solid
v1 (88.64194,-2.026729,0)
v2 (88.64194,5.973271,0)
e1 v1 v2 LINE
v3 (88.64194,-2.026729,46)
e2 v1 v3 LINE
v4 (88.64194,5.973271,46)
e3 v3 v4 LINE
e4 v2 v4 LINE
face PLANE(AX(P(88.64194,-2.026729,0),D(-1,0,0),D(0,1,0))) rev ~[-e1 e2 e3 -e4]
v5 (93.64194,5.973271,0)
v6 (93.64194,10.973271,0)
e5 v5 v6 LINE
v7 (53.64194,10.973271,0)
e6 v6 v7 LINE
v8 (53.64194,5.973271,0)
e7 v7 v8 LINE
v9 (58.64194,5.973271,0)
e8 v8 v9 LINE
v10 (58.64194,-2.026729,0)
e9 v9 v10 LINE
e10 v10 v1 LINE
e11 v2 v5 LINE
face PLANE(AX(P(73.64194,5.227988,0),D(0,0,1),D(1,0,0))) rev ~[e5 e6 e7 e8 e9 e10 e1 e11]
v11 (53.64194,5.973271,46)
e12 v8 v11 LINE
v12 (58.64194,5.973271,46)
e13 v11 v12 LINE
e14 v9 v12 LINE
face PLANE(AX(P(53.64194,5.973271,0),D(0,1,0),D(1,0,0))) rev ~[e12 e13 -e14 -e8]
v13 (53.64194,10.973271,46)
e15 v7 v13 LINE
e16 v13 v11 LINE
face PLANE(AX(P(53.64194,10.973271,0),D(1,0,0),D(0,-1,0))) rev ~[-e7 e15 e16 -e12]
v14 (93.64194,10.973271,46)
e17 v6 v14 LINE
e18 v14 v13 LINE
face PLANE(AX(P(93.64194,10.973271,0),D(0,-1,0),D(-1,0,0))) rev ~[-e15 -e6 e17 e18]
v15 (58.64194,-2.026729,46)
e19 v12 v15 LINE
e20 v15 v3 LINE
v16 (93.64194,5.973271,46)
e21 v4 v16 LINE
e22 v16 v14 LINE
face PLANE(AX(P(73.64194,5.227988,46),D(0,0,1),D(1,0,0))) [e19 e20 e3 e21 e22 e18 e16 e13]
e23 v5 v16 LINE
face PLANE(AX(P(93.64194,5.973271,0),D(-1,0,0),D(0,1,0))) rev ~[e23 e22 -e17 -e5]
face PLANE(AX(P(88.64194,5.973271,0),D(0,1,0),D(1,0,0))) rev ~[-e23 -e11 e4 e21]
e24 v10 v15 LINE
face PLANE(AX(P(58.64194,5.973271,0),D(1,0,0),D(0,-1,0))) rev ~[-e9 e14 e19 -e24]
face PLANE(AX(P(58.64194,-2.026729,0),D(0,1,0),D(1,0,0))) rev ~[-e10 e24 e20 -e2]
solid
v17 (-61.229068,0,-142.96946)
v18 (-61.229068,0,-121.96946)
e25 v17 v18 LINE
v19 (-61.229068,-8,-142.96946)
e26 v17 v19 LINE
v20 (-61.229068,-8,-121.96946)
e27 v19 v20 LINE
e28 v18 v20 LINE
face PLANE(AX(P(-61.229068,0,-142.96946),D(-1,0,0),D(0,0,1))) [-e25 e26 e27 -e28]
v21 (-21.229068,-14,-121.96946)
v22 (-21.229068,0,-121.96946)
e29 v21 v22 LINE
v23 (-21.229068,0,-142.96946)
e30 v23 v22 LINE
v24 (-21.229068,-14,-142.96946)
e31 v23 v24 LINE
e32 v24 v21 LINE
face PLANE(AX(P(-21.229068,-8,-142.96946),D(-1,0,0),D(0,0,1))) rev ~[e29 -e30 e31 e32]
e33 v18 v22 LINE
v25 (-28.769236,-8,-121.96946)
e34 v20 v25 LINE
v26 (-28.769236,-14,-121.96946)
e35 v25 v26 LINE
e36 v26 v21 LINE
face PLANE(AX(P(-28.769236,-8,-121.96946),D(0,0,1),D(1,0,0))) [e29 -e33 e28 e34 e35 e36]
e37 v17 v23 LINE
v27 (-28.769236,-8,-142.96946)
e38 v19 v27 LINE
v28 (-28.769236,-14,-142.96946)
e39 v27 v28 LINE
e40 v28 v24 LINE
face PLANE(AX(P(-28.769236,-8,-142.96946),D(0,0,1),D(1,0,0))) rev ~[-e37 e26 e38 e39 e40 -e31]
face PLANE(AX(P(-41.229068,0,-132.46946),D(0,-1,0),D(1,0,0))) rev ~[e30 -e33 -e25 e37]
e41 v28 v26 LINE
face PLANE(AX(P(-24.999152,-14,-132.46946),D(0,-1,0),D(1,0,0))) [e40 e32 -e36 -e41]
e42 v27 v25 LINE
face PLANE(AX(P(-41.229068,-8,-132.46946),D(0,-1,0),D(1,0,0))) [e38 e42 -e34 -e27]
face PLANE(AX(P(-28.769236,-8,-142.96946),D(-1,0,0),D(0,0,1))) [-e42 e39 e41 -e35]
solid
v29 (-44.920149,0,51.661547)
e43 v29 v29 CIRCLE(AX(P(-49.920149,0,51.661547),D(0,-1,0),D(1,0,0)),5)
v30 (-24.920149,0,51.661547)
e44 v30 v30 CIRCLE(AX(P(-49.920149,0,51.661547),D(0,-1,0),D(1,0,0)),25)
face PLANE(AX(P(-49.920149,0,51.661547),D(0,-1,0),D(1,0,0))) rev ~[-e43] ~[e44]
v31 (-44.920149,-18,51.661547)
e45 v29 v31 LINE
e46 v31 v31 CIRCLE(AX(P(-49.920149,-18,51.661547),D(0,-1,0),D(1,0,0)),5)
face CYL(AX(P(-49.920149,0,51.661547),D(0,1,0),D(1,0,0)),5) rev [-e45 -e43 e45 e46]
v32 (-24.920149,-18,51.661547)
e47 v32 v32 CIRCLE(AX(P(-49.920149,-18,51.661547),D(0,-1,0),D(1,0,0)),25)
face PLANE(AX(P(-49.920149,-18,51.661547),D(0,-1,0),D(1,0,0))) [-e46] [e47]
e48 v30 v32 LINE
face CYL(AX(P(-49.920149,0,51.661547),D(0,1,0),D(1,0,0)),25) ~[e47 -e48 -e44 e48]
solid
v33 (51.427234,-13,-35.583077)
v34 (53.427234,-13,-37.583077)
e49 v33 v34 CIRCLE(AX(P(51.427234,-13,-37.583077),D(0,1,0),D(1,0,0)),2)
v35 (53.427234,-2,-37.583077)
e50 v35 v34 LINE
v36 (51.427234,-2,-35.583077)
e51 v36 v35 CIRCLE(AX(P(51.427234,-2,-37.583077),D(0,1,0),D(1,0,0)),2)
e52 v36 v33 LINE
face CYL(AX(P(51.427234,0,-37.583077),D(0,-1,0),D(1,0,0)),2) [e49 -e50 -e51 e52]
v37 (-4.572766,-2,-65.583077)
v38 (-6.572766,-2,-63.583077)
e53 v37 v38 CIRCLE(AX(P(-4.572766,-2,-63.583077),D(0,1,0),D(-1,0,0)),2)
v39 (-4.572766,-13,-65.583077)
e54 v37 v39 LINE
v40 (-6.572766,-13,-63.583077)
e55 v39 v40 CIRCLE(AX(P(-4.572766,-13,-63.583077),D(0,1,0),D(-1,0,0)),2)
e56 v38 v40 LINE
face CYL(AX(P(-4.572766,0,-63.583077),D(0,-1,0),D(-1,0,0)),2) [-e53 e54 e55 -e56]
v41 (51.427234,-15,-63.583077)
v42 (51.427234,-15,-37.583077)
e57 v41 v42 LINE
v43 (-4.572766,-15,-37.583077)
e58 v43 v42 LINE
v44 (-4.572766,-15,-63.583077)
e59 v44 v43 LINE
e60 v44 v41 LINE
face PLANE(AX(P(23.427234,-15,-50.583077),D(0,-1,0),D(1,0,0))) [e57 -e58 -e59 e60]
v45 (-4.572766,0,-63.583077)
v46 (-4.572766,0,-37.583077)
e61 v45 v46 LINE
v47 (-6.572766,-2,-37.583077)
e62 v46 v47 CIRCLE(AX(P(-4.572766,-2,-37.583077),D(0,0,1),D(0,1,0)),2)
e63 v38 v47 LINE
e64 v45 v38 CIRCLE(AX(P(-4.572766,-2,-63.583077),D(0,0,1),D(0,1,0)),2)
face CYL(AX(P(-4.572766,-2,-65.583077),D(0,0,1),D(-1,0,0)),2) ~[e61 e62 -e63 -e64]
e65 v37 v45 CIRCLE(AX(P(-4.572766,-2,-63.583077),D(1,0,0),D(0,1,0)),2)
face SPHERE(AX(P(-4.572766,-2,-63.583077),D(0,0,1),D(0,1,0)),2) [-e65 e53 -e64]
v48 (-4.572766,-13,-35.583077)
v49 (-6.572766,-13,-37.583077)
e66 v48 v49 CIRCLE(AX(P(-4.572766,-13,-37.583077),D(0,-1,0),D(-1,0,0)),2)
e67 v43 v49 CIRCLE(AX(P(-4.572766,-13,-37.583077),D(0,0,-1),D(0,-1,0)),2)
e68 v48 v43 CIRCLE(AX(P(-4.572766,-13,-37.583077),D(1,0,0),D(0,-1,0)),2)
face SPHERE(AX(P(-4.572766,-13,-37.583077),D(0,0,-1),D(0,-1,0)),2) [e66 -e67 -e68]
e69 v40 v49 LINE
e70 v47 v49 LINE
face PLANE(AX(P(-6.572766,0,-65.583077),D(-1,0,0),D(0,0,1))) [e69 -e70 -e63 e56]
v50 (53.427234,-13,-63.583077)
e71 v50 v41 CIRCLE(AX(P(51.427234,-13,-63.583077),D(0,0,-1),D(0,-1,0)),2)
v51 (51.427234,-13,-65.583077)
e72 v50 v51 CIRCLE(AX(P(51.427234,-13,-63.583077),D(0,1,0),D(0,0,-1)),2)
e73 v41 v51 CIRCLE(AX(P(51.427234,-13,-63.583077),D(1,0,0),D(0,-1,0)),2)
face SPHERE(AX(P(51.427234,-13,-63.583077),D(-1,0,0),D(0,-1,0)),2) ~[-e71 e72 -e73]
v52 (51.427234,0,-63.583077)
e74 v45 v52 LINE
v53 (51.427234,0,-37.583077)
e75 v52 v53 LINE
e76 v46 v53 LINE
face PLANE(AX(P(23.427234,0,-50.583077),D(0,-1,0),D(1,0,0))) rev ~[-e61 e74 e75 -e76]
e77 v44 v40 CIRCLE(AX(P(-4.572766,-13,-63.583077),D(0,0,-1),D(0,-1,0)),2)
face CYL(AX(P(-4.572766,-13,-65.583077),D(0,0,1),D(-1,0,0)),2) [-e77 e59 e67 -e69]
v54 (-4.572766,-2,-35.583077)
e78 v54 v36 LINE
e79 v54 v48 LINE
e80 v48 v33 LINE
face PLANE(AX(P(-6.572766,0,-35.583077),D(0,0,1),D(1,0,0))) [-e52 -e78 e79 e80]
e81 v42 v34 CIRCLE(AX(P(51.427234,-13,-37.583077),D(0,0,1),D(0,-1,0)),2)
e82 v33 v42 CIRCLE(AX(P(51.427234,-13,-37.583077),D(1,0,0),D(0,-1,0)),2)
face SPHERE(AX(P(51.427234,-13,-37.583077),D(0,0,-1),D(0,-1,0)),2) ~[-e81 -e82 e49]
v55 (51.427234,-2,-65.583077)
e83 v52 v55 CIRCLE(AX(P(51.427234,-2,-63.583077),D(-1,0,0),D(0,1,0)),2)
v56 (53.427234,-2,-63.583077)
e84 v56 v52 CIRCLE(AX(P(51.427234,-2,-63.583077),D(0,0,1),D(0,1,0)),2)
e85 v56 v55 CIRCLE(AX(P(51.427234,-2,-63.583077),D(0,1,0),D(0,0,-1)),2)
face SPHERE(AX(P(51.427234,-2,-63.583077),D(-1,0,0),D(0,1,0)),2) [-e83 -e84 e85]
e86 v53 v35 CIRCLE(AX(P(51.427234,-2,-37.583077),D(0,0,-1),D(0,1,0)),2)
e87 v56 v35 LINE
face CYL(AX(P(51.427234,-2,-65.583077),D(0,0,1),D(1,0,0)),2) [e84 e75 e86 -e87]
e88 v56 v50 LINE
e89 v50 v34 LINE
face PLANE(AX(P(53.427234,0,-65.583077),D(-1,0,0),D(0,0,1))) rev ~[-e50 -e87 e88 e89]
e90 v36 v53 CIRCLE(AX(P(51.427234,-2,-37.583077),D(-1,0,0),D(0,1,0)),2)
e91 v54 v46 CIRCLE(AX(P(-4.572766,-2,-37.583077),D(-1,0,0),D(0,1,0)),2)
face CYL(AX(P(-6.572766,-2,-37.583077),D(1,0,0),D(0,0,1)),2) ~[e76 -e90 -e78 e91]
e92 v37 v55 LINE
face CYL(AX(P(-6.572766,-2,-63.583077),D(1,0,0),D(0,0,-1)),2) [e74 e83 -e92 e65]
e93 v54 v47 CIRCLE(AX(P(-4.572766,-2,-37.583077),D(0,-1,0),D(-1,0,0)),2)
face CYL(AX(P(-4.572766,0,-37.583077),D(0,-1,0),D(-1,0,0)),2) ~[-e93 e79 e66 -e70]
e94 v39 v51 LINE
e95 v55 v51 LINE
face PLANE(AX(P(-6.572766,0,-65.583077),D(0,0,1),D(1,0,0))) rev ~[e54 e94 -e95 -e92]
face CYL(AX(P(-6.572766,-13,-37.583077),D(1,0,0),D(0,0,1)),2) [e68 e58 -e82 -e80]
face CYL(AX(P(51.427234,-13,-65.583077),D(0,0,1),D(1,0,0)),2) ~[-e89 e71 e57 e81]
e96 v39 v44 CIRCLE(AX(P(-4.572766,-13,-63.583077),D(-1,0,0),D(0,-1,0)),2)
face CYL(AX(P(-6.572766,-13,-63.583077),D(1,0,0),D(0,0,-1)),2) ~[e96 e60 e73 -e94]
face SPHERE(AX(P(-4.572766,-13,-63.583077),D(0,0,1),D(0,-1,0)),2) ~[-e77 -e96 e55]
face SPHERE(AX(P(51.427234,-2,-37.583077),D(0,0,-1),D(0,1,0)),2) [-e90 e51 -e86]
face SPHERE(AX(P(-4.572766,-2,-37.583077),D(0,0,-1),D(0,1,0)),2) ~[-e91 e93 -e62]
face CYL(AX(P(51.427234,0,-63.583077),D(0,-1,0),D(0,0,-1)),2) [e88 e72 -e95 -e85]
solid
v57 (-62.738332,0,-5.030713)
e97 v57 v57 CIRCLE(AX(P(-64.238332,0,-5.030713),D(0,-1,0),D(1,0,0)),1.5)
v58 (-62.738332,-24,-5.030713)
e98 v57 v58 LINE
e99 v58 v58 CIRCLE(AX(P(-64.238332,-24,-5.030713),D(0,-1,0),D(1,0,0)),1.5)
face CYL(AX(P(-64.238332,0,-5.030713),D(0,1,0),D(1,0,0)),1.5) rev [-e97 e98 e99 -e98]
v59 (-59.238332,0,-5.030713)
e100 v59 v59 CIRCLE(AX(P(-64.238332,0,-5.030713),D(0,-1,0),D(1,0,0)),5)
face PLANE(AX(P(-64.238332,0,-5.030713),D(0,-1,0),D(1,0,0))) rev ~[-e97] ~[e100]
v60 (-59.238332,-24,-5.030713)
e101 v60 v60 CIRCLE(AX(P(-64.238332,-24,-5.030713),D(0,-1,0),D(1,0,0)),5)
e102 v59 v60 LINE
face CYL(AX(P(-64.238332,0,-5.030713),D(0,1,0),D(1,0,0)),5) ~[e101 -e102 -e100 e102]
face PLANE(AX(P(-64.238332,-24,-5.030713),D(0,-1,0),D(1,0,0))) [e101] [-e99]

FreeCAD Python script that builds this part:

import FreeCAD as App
import Part
import Sketcher
Q = App.Units.Quantity

doc = App.newDocument("Part")
params = doc.addObject("Spreadsheet::Sheet", "Params")
for row, (alias, value) in enumerate([
    ("sketch1_diameter", "50 mm"),
    ("sketch1_diameter2", "10 mm"),
    ("pad1_length", "18 mm"),
    ("sketch2_diameter", "10 mm"),
    ("sketch2_diameter2", "3 mm"),
    ("pad2_length", "24 mm"),
    ("sketch3_width", "60 mm"),
    ("sketch3_height", "30 mm"),
    ("pad3_length", "15 mm"),
    ("fillet_radius", "2 mm"),
    ("sketch4_width", "40 mm"),
    ("sketch4_height", "21 mm"),
    ("pad4_length", "8 mm"),
    ("sketch5_height", "21 mm"),
    ("pad5_length", "6 mm"),
    ("sketch6_width", "40 mm"),
    ("sketch6_width2", "5 mm"),
    ("sketch6_height", "8 mm"),
    ("pad6_length", "46 mm"),
], start=1):
    params.set(f"A{row}", alias)
    params.set(f"B{row}", "=" + value)
    params.setAlias(f"B{row}", alias)

body = doc.addObject("PartDesign::Body", "Body")

# Sketch on XZ plane
sketch1 = body.newObject("Sketcher::SketchObject", "Sketch")
sketch1.AttachmentSupport = (doc.getObject("XZ_Plane"), [""])
sketch1.MapMode = "FlatFace"
sketch1.addGeometry([
    Part.Circle(App.Vector(-50, 52, 0), App.Vector(0, 0, 1), 25),
    Part.Circle(App.Vector(-50, 52, 0), App.Vector(0, 0, 1), 5),
], False)
sketch1.addConstraint([
    Sketcher.Constraint("Coincident", 1, 3, 0, 3),
    Sketcher.Constraint("Diameter", 0, Q("50 mm")),
    Sketcher.Constraint("Diameter", 1, Q("10 mm")),
    Sketcher.Constraint("DistanceX", 0, 3, -1, 1, Q("49.920149 mm")),
    Sketcher.Constraint("DistanceY", -1, 1, 0, 3, Q("51.661547 mm")),
])
sketch1.setExpression("Constraints[1]", "Params.sketch1_diameter")
sketch1.setExpression("Constraints[2]", "Params.sketch1_diameter2")
pad1 = body.newObject("PartDesign::Pad", "Pad")
pad1.Profile = sketch1
pad1.setExpression("Length", "Params.pad1_length")
body2 = doc.addObject("PartDesign::Body", "Body001")

# Sketch on XZ plane
sketch2 = body2.newObject("Sketcher::SketchObject", "Sketch001")
sketch2.AttachmentSupport = (doc.getObject("XZ_Plane001"), [""])
sketch2.MapMode = "FlatFace"
sketch2.addGeometry([
    Part.Circle(App.Vector(-64.2, -5, 0), App.Vector(0, 0, 1), 5),
    Part.Circle(App.Vector(-64.2, -5, 0), App.Vector(0, 0, 1), 1.5),
], False)
sketch2.addConstraint([
    Sketcher.Constraint("Coincident", 1, 3, 0, 3),
    Sketcher.Constraint("Diameter", 0, Q("10 mm")),
    Sketcher.Constraint("Diameter", 1, Q("3 mm")),
    Sketcher.Constraint("DistanceX", 0, 3, -1, 1, Q("64.238332 mm")),
    Sketcher.Constraint("DistanceY", 0, 3, -1, 1, Q("5.030713 mm")),
])
sketch2.setExpression("Constraints[1]", "Params.sketch2_diameter")
sketch2.setExpression("Constraints[2]", "Params.sketch2_diameter2")
pad2 = body2.newObject("PartDesign::Pad", "Pad001")
pad2.Profile = sketch2
pad2.setExpression("Length", "Params.pad2_length")
body3 = doc.addObject("PartDesign::Body", "Body002")

# Sketch on XZ plane
sketch3 = body3.newObject("Sketcher::SketchObject", "Sketch002")
sketch3.AttachmentSupport = (doc.getObject("XZ_Plane002"), [""])
sketch3.MapMode = "FlatFace"
sketch3.addGeometry([
    Part.LineSegment(App.Vector(-7, -36, 0), App.Vector(-7, -66, 0)),
    Part.LineSegment(App.Vector(-7, -66, 0), App.Vector(53, -66, 0)),
    Part.LineSegment(App.Vector(53, -66, 0), App.Vector(53, -36, 0)),
    Part.LineSegment(App.Vector(53, -36, 0), App.Vector(-7, -36, 0)),
], False)
sketch3.addConstraint([
    Sketcher.Constraint("Coincident", 0, 2, 1, 1),
    Sketcher.Constraint("Coincident", 1, 2, 2, 1),
    Sketcher.Constraint("Coincident", 2, 2, 3, 1),
    Sketcher.Constraint("Coincident", 3, 2, 0, 1),
    Sketcher.Constraint("Vertical", 0),
    Sketcher.Constraint("Horizontal", 1),
    Sketcher.Constraint("Vertical", 2),
    Sketcher.Constraint("Horizontal", 3),
    Sketcher.Constraint("DistanceX", 1, 1, 1, 2, Q("60 mm")),
    Sketcher.Constraint("DistanceY", 0, 2, 0, 1, Q("30 mm")),
    Sketcher.Constraint("DistanceX", 0, 2, -1, 1, Q("6.572766 mm")),
    Sketcher.Constraint("DistanceY", 0, 2, -1, 1, Q("65.583077 mm")),
])
sketch3.setExpression("Constraints[8]", "Params.sketch3_width")
sketch3.setExpression("Constraints[9]", "Params.sketch3_height")
pad3 = body3.newObject("PartDesign::Pad", "Pad002")
pad3.Profile = sketch3
pad3.setExpression("Length", "Params.pad3_length")
doc.recompute()

fillet = body3.newObject("PartDesign::Fillet", "Fillet")
fillet.Base = (pad3, ["Edge1"])
fillet.UseAllEdges = True
fillet.setExpression("Radius", "Params.fillet_radius")
body4 = doc.addObject("PartDesign::Body", "Body003")

# Sketch on XZ plane
sketch4 = body4.newObject("Sketcher::SketchObject", "Sketch003")
sketch4.AttachmentSupport = (doc.getObject("XZ_Plane003"), [""])
sketch4.MapMode = "FlatFace"
sketch4.addGeometry([
    Part.LineSegment(App.Vector(-61, -122, 0), App.Vector(-61, -143, 0)),
    Part.LineSegment(App.Vector(-61, -143, 0), App.Vector(-21, -143, 0)),
    Part.LineSegment(App.Vector(-21, -143, 0), App.Vector(-21, -122, 0)),
    Part.LineSegment(App.Vector(-21, -122, 0), App.Vector(-61, -122, 0)),
], False)
sketch4.addConstraint([
    Sketcher.Constraint("Coincident", 0, 2, 1, 1),
    Sketcher.Constraint("Coincident", 1, 2, 2, 1),
    Sketcher.Constraint("Coincident", 2, 2, 3, 1),
    Sketcher.Constraint("Coincident", 3, 2, 0, 1),
    Sketcher.Constraint("Vertical", 0),
    Sketcher.Constraint("Horizontal", 1),
    Sketcher.Constraint("Vertical", 2),
    Sketcher.Constraint("Horizontal", 3),
    Sketcher.Constraint("DistanceX", 1, 1, 1, 2, Q("40 mm")),
    Sketcher.Constraint("DistanceY", 0, 2, 0, 1, Q("21 mm")),
    Sketcher.Constraint("DistanceY", 0, 2, -1, 1, Q("142.96946 mm")),
    Sketcher.Constraint("DistanceX", 1, 2, -1, 1, Q("21.229068 mm")),
])
sketch4.setExpression("Constraints[8]", "Params.sketch4_width")
sketch4.setExpression("Constraints[9]", "Params.sketch4_height")
pad4 = body4.newObject("PartDesign::Pad", "Pad003")
pad4.Profile = sketch4
pad4.setExpression("Length", "Params.pad4_length")

# Sketch on XZ plane
sketch5 = body4.newObject("Sketcher::SketchObject", "Sketch004")
sketch5.AttachmentSupport = (doc.getObject("XZ_Plane003"), [""])
sketch5.MapMode = "FlatFace"
sketch5.AttachmentOffset = App.Placement(App.Vector(0, 0, 8), App.Rotation())
sketch5.addGeometry([
    Part.LineSegment(App.Vector(-29, -122, 0), App.Vector(-29, -143, 0)),
    Part.LineSegment(App.Vector(-29, -143, 0), App.Vector(-21, -143, 0)),
    Part.LineSegment(App.Vector(-21, -143, 0), App.Vector(-21, -122, 0)),
    Part.LineSegment(App.Vector(-21, -122, 0), App.Vector(-29, -122, 0)),
], False)
sketch5.addConstraint([
    Sketcher.Constraint("Coincident", 0, 2, 1, 1),
    Sketcher.Constraint("Coincident", 1, 2, 2, 1),
    Sketcher.Constraint("Coincident", 2, 2, 3, 1),
    Sketcher.Constraint("Coincident", 3, 2, 0, 1),
    Sketcher.Constraint("Vertical", 0),
    Sketcher.Constraint("Horizontal", 1),
    Sketcher.Constraint("Vertical", 2),
    Sketcher.Constraint("Horizontal", 3),
    Sketcher.Constraint("DistanceY", 0, 2, 0, 1, Q("21 mm")),
    Sketcher.Constraint("DistanceX", 1, 1, 1, 2, Q("7.540168 mm")),
    Sketcher.Constraint("DistanceY", 0, 2, -1, 1, Q("142.96946 mm")),
    Sketcher.Constraint("DistanceX", 1, 2, -1, 1, Q("21.229068 mm")),
])
sketch5.setExpression("Constraints[8]", "Params.sketch5_height")
pad5 = body4.newObject("PartDesign::Pad", "Pad004")
pad5.Profile = sketch5
pad5.setExpression("Length", "Params.pad5_length")
body5 = doc.addObject("PartDesign::Body", "Body004")

# Sketch on XY plane
sketch6 = body5.newObject("Sketcher::SketchObject", "Sketch005")
sketch6.AttachmentSupport = (doc.getObject("XY_Plane004"), [""])
sketch6.MapMode = "FlatFace"
sketch6.addGeometry([
    Part.LineSegment(App.Vector(94, 11, 0), App.Vector(54, 11, 0)),  # 0
    Part.LineSegment(App.Vector(54, 11, 0), App.Vector(54, 6, 0)),  # 1
    Part.LineSegment(App.Vector(54, 6, 0), App.Vector(59, 6, 0)),  # 2
    Part.LineSegment(App.Vector(59, 6, 0), App.Vector(59, -2, 0)),  # 3
    Part.LineSegment(App.Vector(59, -2, 0), App.Vector(89, -2, 0)),  # 4
    Part.LineSegment(App.Vector(89, -2, 0), App.Vector(89, 6, 0)),  # 5
    Part.LineSegment(App.Vector(89, 6, 0), App.Vector(94, 6, 0)),  # 6
    Part.LineSegment(App.Vector(94, 6, 0), App.Vector(94, 11, 0)),  # 7
], False)
sketch6.addConstraint([
    Sketcher.Constraint("Coincident", 0, 2, 1, 1),
    Sketcher.Constraint("Coincident", 1, 2, 2, 1),
    Sketcher.Constraint("Coincident", 2, 2, 3, 1),
    Sketcher.Constraint("Coincident", 3, 2, 4, 1),
    Sketcher.Constraint("Coincident", 4, 2, 5, 1),
    Sketcher.Constraint("Coincident", 5, 2, 6, 1),
    Sketcher.Constraint("Coincident", 6, 2, 7, 1),
    Sketcher.Constraint("Coincident", 7, 2, 0, 1),
    Sketcher.Constraint("Horizontal", 0),
    Sketcher.Constraint("Vertical", 1),
    Sketcher.Constraint("Horizontal", 2),
    Sketcher.Constraint("Vertical", 3),
    Sketcher.Constraint("Horizontal", 4),
    Sketcher.Constraint("Vertical", 5),
    Sketcher.Constraint("Horizontal", 6),
    Sketcher.Constraint("Vertical", 7),
    Sketcher.Constraint("Horizontal", 2, 2, 5, 2),
    Sketcher.Constraint("Equal", 2, 6),
    Sketcher.Constraint("Equal", 6, 1),
    Sketcher.Constraint("DistanceX", 0, 2, 0, 1, Q("40 mm")),
    Sketcher.Constraint("DistanceX", 2, 1, 2, 2, Q("5 mm")),
    Sketcher.Constraint("DistanceY", 3, 2, 3, 1, Q("8 mm")),
    Sketcher.Constraint("DistanceX", -1, 1, 0, 2, Q("53.64194 mm")),
    Sketcher.Constraint("DistanceY", -1, 1, 0, 2, Q("10.973271 mm")),
])
sketch6.setExpression("Constraints[19]", "Params.sketch6_width")
sketch6.setExpression("Constraints[20]", "Params.sketch6_width2")
sketch6.setExpression("Constraints[21]", "Params.sketch6_height")
pad6 = body5.newObject("PartDesign::Pad", "Pad005")
pad6.Profile = sketch6
pad6.setExpression("Length", "Params.pad6_length")

doc.recompute()
